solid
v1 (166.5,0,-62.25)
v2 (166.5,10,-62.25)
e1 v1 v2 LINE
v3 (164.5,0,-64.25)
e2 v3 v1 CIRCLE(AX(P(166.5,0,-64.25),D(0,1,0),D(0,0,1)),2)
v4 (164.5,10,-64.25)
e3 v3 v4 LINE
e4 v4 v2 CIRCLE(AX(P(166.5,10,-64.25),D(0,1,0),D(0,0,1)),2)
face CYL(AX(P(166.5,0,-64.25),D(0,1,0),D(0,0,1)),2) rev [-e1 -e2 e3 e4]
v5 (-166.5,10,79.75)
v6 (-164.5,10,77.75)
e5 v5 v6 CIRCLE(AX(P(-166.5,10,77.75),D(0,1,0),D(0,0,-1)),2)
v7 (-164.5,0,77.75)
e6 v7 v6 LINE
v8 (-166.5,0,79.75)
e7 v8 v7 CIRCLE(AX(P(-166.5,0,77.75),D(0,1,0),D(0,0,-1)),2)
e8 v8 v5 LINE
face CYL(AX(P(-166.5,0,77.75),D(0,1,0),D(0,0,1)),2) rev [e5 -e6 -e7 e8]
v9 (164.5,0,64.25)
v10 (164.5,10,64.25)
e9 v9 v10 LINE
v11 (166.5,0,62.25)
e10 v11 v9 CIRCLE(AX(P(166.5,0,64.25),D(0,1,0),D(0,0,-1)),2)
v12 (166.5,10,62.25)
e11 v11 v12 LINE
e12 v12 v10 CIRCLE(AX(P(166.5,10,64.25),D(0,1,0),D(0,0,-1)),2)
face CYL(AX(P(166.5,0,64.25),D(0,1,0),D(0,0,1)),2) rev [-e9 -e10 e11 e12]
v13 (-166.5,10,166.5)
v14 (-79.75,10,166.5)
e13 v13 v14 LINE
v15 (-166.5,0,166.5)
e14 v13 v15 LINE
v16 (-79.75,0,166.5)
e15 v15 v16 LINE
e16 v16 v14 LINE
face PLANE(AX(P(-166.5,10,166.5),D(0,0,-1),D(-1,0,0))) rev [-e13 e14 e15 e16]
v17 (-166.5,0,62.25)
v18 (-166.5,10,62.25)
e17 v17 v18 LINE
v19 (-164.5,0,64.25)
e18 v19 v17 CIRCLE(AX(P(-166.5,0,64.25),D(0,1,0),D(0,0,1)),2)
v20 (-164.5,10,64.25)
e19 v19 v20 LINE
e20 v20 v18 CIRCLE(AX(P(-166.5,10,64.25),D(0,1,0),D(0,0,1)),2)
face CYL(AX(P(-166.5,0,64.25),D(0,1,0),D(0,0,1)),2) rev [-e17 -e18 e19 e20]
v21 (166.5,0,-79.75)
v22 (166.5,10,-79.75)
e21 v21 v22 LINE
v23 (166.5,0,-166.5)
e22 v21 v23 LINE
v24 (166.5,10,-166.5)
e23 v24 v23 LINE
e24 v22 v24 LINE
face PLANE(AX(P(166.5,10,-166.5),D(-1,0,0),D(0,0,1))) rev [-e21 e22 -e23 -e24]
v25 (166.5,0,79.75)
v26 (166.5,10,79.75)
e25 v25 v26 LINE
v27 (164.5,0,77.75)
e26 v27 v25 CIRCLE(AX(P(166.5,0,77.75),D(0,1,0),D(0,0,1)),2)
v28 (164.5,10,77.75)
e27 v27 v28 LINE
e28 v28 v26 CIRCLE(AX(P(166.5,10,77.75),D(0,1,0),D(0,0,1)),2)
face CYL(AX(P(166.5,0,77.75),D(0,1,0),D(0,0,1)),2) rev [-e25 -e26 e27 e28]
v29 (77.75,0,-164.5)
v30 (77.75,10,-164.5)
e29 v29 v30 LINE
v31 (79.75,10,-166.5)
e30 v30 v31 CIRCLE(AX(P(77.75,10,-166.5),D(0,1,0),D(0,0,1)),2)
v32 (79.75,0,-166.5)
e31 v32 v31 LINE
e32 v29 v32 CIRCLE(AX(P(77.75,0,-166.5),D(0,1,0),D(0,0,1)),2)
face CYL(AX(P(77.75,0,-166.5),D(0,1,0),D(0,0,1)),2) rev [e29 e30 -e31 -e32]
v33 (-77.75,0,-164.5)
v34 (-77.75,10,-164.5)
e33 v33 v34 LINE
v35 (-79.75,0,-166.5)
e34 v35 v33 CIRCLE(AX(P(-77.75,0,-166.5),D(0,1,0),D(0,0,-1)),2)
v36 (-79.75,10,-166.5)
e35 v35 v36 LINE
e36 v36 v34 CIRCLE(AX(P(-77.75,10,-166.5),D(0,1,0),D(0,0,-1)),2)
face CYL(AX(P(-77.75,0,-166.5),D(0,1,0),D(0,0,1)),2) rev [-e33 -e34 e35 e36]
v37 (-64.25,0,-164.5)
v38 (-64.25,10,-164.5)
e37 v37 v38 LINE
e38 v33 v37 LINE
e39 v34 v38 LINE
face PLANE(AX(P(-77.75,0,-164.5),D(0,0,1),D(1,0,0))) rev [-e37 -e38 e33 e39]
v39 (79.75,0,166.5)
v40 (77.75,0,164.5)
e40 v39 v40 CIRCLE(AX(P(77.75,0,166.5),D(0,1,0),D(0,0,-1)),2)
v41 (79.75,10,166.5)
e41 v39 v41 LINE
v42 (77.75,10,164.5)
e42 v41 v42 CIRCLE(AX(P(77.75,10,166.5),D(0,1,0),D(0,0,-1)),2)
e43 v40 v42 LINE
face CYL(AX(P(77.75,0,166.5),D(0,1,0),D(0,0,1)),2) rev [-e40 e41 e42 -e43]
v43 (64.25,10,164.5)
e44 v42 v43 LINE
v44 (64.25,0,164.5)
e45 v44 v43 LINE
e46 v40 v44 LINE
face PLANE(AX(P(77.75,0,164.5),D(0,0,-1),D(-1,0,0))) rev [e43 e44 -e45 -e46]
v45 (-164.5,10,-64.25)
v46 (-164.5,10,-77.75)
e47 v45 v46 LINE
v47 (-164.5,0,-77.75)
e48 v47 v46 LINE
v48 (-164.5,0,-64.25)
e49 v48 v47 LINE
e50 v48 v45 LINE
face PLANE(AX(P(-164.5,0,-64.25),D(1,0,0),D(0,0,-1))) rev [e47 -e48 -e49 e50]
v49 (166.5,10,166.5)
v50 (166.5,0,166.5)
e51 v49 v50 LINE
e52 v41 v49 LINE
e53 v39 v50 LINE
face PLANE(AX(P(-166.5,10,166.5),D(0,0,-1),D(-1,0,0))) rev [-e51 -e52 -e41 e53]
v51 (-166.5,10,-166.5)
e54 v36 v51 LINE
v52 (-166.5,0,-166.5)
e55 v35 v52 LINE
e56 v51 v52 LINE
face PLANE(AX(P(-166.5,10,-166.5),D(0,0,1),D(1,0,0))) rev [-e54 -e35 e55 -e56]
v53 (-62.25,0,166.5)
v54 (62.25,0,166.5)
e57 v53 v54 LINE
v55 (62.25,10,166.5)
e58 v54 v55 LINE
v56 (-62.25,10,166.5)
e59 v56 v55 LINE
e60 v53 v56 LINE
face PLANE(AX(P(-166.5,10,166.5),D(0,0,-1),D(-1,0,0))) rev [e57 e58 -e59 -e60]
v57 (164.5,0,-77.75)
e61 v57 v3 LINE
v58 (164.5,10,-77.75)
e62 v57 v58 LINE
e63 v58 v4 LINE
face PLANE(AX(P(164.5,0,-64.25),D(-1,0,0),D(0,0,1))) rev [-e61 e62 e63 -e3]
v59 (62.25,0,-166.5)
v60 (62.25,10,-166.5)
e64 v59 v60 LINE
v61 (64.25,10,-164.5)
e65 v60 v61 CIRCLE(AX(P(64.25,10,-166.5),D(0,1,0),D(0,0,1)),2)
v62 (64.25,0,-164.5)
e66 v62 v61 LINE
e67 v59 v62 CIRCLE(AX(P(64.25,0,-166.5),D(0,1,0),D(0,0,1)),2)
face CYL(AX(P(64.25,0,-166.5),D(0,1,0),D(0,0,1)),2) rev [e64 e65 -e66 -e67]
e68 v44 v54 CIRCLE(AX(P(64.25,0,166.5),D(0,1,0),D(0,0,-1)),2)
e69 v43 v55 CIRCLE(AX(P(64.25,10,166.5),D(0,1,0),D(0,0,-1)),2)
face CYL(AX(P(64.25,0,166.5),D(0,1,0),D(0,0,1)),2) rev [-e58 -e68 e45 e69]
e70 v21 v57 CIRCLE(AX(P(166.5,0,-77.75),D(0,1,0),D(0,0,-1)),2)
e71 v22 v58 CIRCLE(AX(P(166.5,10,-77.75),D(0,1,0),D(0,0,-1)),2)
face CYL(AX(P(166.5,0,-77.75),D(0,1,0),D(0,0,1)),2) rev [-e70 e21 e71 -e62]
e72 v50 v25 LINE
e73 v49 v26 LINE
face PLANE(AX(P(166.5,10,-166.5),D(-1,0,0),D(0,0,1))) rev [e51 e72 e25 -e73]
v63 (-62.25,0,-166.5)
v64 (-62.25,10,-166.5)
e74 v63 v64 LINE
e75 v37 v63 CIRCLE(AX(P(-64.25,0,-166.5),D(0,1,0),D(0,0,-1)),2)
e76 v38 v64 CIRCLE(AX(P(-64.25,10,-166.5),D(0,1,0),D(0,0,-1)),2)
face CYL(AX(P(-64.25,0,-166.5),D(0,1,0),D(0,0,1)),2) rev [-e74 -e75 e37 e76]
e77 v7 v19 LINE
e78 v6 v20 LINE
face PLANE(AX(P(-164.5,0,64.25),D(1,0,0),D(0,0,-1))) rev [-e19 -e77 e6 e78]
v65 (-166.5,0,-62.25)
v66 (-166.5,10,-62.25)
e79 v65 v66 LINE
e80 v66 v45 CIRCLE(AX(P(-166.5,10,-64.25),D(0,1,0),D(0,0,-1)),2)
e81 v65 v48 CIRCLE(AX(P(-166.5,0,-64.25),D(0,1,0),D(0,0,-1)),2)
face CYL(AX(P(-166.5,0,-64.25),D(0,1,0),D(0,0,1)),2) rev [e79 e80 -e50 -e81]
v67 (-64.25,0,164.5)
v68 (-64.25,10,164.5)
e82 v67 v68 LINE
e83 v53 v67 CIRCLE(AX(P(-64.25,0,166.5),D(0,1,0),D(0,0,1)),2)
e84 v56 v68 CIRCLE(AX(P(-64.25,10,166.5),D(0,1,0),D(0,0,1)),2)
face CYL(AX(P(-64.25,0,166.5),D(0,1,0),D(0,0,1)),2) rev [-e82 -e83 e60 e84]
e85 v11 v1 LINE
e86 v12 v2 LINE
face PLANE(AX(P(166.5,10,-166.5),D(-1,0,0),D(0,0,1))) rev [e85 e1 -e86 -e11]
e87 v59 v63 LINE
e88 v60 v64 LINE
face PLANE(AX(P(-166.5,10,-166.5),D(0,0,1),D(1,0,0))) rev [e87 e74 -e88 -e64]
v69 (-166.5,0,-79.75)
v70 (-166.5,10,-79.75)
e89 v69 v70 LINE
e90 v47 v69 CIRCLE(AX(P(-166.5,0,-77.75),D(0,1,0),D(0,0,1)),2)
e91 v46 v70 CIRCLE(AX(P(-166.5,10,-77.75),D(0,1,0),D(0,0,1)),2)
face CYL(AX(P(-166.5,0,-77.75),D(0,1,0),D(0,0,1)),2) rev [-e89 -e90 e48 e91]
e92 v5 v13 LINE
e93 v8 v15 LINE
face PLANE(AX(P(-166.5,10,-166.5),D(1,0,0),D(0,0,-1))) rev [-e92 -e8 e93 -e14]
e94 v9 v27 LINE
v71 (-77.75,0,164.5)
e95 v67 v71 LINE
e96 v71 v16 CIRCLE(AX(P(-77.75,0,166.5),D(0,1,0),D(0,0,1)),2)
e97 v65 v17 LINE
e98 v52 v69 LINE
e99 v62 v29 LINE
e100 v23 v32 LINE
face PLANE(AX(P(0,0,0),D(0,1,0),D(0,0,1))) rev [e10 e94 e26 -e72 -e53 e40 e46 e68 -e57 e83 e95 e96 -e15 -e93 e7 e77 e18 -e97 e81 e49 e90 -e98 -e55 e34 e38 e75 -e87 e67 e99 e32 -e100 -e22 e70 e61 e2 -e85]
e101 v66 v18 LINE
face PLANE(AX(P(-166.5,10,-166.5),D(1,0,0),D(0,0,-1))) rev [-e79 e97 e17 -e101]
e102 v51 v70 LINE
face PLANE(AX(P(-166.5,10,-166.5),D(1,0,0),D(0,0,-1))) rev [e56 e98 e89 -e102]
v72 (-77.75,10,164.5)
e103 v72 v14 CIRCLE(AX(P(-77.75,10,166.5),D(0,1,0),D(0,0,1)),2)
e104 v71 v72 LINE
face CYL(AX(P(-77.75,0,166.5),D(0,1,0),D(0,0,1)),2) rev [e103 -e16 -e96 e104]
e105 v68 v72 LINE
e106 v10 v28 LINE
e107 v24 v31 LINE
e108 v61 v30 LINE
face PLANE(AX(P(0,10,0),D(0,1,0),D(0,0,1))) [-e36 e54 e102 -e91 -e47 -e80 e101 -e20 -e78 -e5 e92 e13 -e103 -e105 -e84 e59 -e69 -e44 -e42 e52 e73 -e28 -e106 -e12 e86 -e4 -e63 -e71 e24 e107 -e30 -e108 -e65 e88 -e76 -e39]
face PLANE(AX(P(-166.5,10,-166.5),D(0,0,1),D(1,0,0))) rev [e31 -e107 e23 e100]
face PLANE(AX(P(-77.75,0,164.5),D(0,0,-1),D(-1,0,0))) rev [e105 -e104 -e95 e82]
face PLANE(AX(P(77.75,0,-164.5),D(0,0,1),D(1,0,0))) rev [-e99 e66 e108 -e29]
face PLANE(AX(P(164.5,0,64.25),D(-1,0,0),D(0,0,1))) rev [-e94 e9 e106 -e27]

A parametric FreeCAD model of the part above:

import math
import FreeCAD as App
import Part
import Sketcher


def add_polygon(sketch, points):
    """Adds a closed chain of lines whose ends are joined by coincident constraints."""
    first, n = sketch.GeometryCount, len(points)
    for a, b in zip(points, points[1:] + points[:1]):
        sketch.addGeometry(Part.LineSegment(App.Vector(*a, 0), App.Vector(*b, 0)), False)
    for i in range(n):
        sketch.addConstraint(Sketcher.Constraint("Coincident", first + i, 2, first + (i + 1) % n, 1))

doc = App.newDocument("Part")
body = doc.addObject("PartDesign::Body", "Body")

# Sketch on XZ plane
sketch1 = doc.addObject("Sketcher::SketchObject", "Sketch")
body.addObject(sketch1)
sketch1.AttachmentSupport = (doc.XZ_Plane, [""])
sketch1.MapMode = "FlatFace"
add_polygon(sketch1, [(-166.5, -166.5), (-166.5, 166.5), (166.5, 166.5), (166.5, -166.5)])  # lines 0-3
sketch1.addConstraint([
    Sketcher.Constraint("Vertical", 0),
    Sketcher.Constraint("Horizontal", 1),
    Sketcher.Constraint("Vertical", 2),
    Sketcher.Constraint("Horizontal", 3),
    Sketcher.Constraint("Symmetric", 0, 2, 2, 2, -1, 1),
    Sketcher.Constraint("Equal", 3, 0),
    Sketcher.Constraint("DistanceX", 1, 1, 1, 2, 333.0),
])
pad1 = doc.addObject("PartDesign::Pad", "Pad")
body.addObject(pad1)
pad1.Profile = sketch1
pad1.Length = 10
pad1.Reversed = True

# Sketch on XZ plane
sketch2 = doc.addObject("Sketcher::SketchObject", "Sketch001")
body.addObject(sketch2)
sketch2.AttachmentSupport = (doc.XZ_Plane, [""])
sketch2.MapMode = "FlatFace"
sketch2.AttachmentOffset = App.Placement(App.Vector(0, 0, -10), App.Rotation())
sketch2.addGeometry([
    Part.LineSegment(App.Vector(-64.25, 164.5, 0), App.Vector(-77.75, 164.5, 0)),  # 0
    Part.ArcOfCircle(Part.Circle(App.Vector(-77.75, 166.5, 0), App.Vector(0, 0, 1), 2), math.radians(-180), math.radians(-90)),  # 1
    Part.LineSegment(App.Vector(-79.75, 166.5, 0), App.Vector(-79.75, 168.5, 0)),  # 2
    Part.LineSegment(App.Vector(-79.75, 168.5, 0), App.Vector(-62.25, 168.5, 0)),  # 3
    Part.LineSegment(App.Vector(-62.25, 168.5, 0), App.Vector(-62.25, 166.5, 0)),  # 4
    Part.ArcOfCircle(Part.Circle(App.Vector(-64.25, 166.5, 0), App.Vector(0, 0, 1), 2), math.radians(-90), math.radians(0)),  # 5
    Part.LineSegment(App.Vector(168.5, 62.25, 0), App.Vector(166.5, 62.25, 0)),  # 6
    Part.ArcOfCircle(Part.Circle(App.Vector(166.5, 64.25, 0), App.Vector(0, 0, 1), 2), math.radians(-180), math.radians(-90)),  # 7
    Part.LineSegment(App.Vector(164.5, 64.25, 0), App.Vector(164.5, 77.75, 0)),  # 8
    Part.ArcOfCircle(Part.Circle(App.Vector(166.5, 77.75, 0), App.Vector(0, 0, 1), 2), math.radians(90), math.radians(180)),  # 9
    Part.LineSegment(App.Vector(166.5, 79.75, 0), App.Vector(168.5, 79.75, 0)),  # 10
    Part.LineSegment(App.Vector(168.5, 79.75, 0), App.Vector(168.5, 62.25, 0)),  # 11
    Part.LineSegment(App.Vector(62.25, 166.5, 0), App.Vector(62.25, 168.5, 0)),  # 12
    Part.LineSegment(App.Vector(62.25, 168.5, 0), App.Vector(79.75, 168.5, 0)),  # 13
    Part.LineSegment(App.Vector(79.75, 168.5, 0), App.Vector(79.75, 166.5, 0)),  # 14
    Part.ArcOfCircle(Part.Circle(App.Vector(77.75, 166.5, 0), App.Vector(0, 0, 1), 2), math.radians(-90), math.radians(0)),  # 15
    Part.LineSegment(App.Vector(77.75, 164.5, 0), App.Vector(64.25, 164.5, 0)),  # 16
    Part.ArcOfCircle(Part.Circle(App.Vector(64.25, 166.5, 0), App.Vector(0, 0, 1), 2), math.radians(-180), math.radians(-90)),  # 17
    Part.LineSegment(App.Vector(168.5, -62.25, 0), App.Vector(168.5, -79.75, 0)),  # 18
    Part.LineSegment(App.Vector(168.5, -79.75, 0), App.Vector(166.5, -79.75, 0)),  # 19
    Part.ArcOfCircle(Part.Circle(App.Vector(166.5, -77.75, 0), App.Vector(0, 0, 1), 2), math.radians(-180), math.radians(-90)),  # 20
    Part.LineSegment(App.Vector(164.5, -77.75, 0), App.Vector(164.5, -64.25, 0)),  # 21
    Part.ArcOfCircle(Part.Circle(App.Vector(166.5, -64.25, 0), App.Vector(0, 0, 1), 2), math.radians(90), math.radians(180)),  # 22
    Part.LineSegment(App.Vector(166.5, -62.25, 0), App.Vector(168.5, -62.25, 0)),  # 23
    Part.LineSegment(App.Vector(-168.5, -62.25, 0), App.Vector(-166.5, -62.25, 0)),  # 24
    Part.ArcOfCircle(Part.Circle(App.Vector(-166.5, -64.25, 0), App.Vector(0, 0, 1), 2), math.radians(0), math.radians(90)),  # 25
    Part.LineSegment(App.Vector(-164.5, -64.25, 0), App.Vector(-164.5, -77.75, 0)),  # 26
    Part.ArcOfCircle(Part.Circle(App.Vector(-166.5, -77.75, 0), App.Vector(0, 0, 1), 2), math.radians(-90), math.radians(0)),  # 27
    Part.LineSegment(App.Vector(-166.5, -79.75, 0), App.Vector(-168.5, -79.75, 0)),  # 28
    Part.LineSegment(App.Vector(-168.5, -79.75, 0), App.Vector(-168.5, -62.25, 0)),  # 29
    Part.LineSegment(App.Vector(-168.5, 62.25, 0), App.Vector(-168.5, 79.75, 0)),  # 30
    Part.LineSegment(App.Vector(-168.5, 79.75, 0), App.Vector(-166.5, 79.75, 0)),  # 31
    Part.ArcOfCircle(Part.Circle(App.Vector(-166.5, 77.75, 0), App.Vector(0, 0, 1), 2), math.radians(0), math.radians(90)),  # 32
    Part.LineSegment(App.Vector(-164.5, 77.75, 0), App.Vector(-164.5, 64.25, 0)),  # 33
    Part.ArcOfCircle(Part.Circle(App.Vector(-166.5, 64.25, 0), App.Vector(0, 0, 1), 2), math.radians(-90), math.radians(0)),  # 34
    Part.LineSegment(App.Vector(-166.5, 62.25, 0), App.Vector(-168.5, 62.25, 0)),  # 35
    Part.LineSegment(App.Vector(64.25, -164.5, 0), App.Vector(77.75, -164.5, 0)),  # 36
    Part.ArcOfCircle(Part.Circle(App.Vector(77.75, -166.5, 0), App.Vector(0, 0, 1), 2), math.radians(0), math.radians(90)),  # 37
    Part.LineSegment(App.Vector(79.75, -166.5, 0), App.Vector(79.75, -168.5, 0)),  # 38
    Part.LineSegment(App.Vector(79.75, -168.5, 0), App.Vector(62.25, -168.5, 0)),  # 39
    Part.LineSegment(App.Vector(62.25, -168.5, 0), App.Vector(62.25, -166.5, 0)),  # 40
    Part.ArcOfCircle(Part.Circle(App.Vector(64.25, -166.5, 0), App.Vector(0, 0, 1), 2), math.radians(90), math.radians(180)),  # 41
    Part.LineSegment(App.Vector(-62.25, -166.5, 0), App.Vector(-62.25, -168.5, 0)),  # 42
    Part.LineSegment(App.Vector(-62.25, -168.5, 0), App.Vector(-79.75, -168.5, 0)),  # 43
    Part.LineSegment(App.Vector(-79.75, -168.5, 0), App.Vector(-79.75, -166.5, 0)),  # 44
    Part.ArcOfCircle(Part.Circle(App.Vector(-77.75, -166.5, 0), App.Vector(0, 0, 1), 2), math.radians(90), math.radians(180)),  # 45
    Part.LineSegment(App.Vector(-77.75, -164.5, 0), App.Vector(-64.25, -164.5, 0)),  # 46
    Part.ArcOfCircle(Part.Circle(App.Vector(-64.25, -166.5, 0), App.Vector(0, 0, 1), 2), math.radians(0), math.radians(90)),  # 47
], False)
sketch2.addConstraint([
    Sketcher.Constraint("Tangent", 0, 2, 1, 2),
    Sketcher.Constraint("Tangent", 1, 1, 2, 1),
    Sketcher.Constraint("Coincident", 2, 2, 3, 1),
    Sketcher.Constraint("Coincident", 3, 2, 4, 1),
    Sketcher.Constraint("Tangent", 4, 2, 5, 2),
    Sketcher.Constraint("Tangent", 5, 1, 0, 1),
    Sketcher.Constraint("Tangent", 6, 2, 7, 2),
    Sketcher.Constraint("Tangent", 7, 1, 8, 1),
    Sketcher.Constraint("Tangent", 8, 2, 9, 2),
    Sketcher.Constraint("Tangent", 9, 1, 10, 1),
    Sketcher.Constraint("Coincident", 10, 2, 11, 1),
    Sketcher.Constraint("Coincident", 11, 2, 6, 1),
    Sketcher.Constraint("Coincident", 12, 2, 13, 1),
    Sketcher.Constraint("Coincident", 13, 2, 14, 1),
    Sketcher.Constraint("Tangent", 14, 2, 15, 2),
    Sketcher.Constraint("Tangent", 15, 1, 16, 1),
    Sketcher.Constraint("Tangent", 16, 2, 17, 2),
    Sketcher.Constraint("Tangent", 17, 1, 12, 1),
    Sketcher.Constraint("Coincident", 18, 2, 19, 1),
    Sketcher.Constraint("Tangent", 19, 2, 20, 2),
    Sketcher.Constraint("Tangent", 20, 1, 21, 1),
    Sketcher.Constraint("Tangent", 21, 2, 22, 2),
    Sketcher.Constraint("Tangent", 22, 1, 23, 1),
    Sketcher.Constraint("Coincident", 23, 2, 18, 1),
    Sketcher.Constraint("Tangent", 24, 2, 25, 2),
    Sketcher.Constraint("Tangent", 25, 1, 26, 1),
    Sketcher.Constraint("Tangent", 26, 2, 27, 2),
    Sketcher.Constraint("Tangent", 27, 1, 28, 1),
    Sketcher.Constraint("Coincident", 28, 2, 29, 1),
    Sketcher.Constraint("Coincident", 29, 2, 24, 1),
    Sketcher.Constraint("Coincident", 30, 2, 31, 1),
    Sketcher.Constraint("Tangent", 31, 2, 32, 2),
    Sketcher.Constraint("Tangent", 32, 1, 33, 1),
    Sketcher.Constraint("Tangent", 33, 2, 34, 2),
    Sketcher.Constraint("Tangent", 34, 1, 35, 1),
    Sketcher.Constraint("Coincident", 35, 2, 30, 1),
    Sketcher.Constraint("Tangent", 36, 2, 37, 2),
    Sketcher.Constraint("Tangent", 37, 1, 38, 1),
    Sketcher.Constraint("Coincident", 38, 2, 39, 1),
    Sketcher.Constraint("Coincident", 39, 2, 40, 1),
    Sketcher.Constraint("Tangent", 40, 2, 41, 2),
    Sketcher.Constraint("Tangent", 41, 1, 36, 1),
    Sketcher.Constraint("Coincident", 42, 2, 43, 1),
    Sketcher.Constraint("Coincident", 43, 2, 44, 1),
    Sketcher.Constraint("Tangent", 44, 2, 45, 2),
    Sketcher.Constraint("Tangent", 45, 1, 46, 1),
    Sketcher.Constraint("Tangent", 46, 2, 47, 2),
    Sketcher.Constraint("Tangent", 47, 1, 42, 1),
    Sketcher.Constraint("Horizontal", 0),
    Sketcher.Constraint("Vertical", 2),
    Sketcher.Constraint("Horizontal", 3),
    Sketcher.Constraint("Vertical", 4),
    Sketcher.Constraint("Horizontal", 6),
    Sketcher.Constraint("Vertical", 8),
    Sketcher.Constraint("Horizontal", 10),
    Sketcher.Constraint("Vertical", 11),
    Sketcher.Constraint("Vertical", 12),
    Sketcher.Constraint("Horizontal", 13),
    Sketcher.Constraint("Vertical", 14),
    Sketcher.Constraint("Horizontal", 16),
    Sketcher.Constraint("Vertical", 18),
    Sketcher.Constraint("Horizontal", 19),
    Sketcher.Constraint("Vertical", 21),
    Sketcher.Constraint("Horizontal", 23),
    Sketcher.Constraint("Horizontal", 24),
    Sketcher.Constraint("Vertical", 26),
    Sketcher.Constraint("Horizontal", 28),
    Sketcher.Constraint("Vertical", 29),
    Sketcher.Constraint("Vertical", 30),
    Sketcher.Constraint("Horizontal", 31),
    Sketcher.Constraint("Vertical", 33),
    Sketcher.Constraint("Horizontal", 35),
    Sketcher.Constraint("Horizontal", 36),
    Sketcher.Constraint("Vertical", 38),
    Sketcher.Constraint("Horizontal", 39),
    Sketcher.Constraint("Vertical", 40),
    Sketcher.Constraint("Vertical", 42),
    Sketcher.Constraint("Horizontal", 43),
    Sketcher.Constraint("Vertical", 44),
    Sketcher.Constraint("Horizontal", 46),
    Sketcher.Constraint("Equal", 1, 5),
    Sketcher.Constraint("Equal", 5, 7),
    Sketcher.Constraint("Equal", 7, 9),
    Sketcher.Constraint("Equal", 9, 15),
    Sketcher.Constraint("Equal", 15, 17),
    Sketcher.Constraint("Equal", 17, 20),
    Sketcher.Constraint("Equal", 20, 22),
    Sketcher.Constraint("Equal", 22, 25),
    Sketcher.Constraint("Equal", 25, 27),
    Sketcher.Constraint("Equal", 27, 32),
    Sketcher.Constraint("Equal", 32, 34),
    Sketcher.Constraint("Equal", 34, 37),
    Sketcher.Constraint("Equal", 37, 41),
    Sketcher.Constraint("Equal", 41, 45),
    Sketcher.Constraint("Equal", 45, 47),
    Sketcher.Constraint("Symmetric", 7, 3, 25, 3, -1, 1),
    Sketcher.Constraint("Symmetric", 20, 3, 32, 3, -1, 1),
    Sketcher.Constraint("Symmetric", 1, 3, 37, 3, -1, 1),
    Sketcher.Constraint("Symmetric", 15, 3, 45, 3, -1, 1),
    Sketcher.Constraint("Symmetric", 10, 2, 28, 2, -1, 1),
    Sketcher.Constraint("Symmetric", 23, 2, 35, 2, -1, 1),
    Sketcher.Constraint("Symmetric", 3, 2, 39, 2, -1, 1),
    Sketcher.Constraint("Symmetric", 12, 2, 42, 2, -1, 1),
    Sketcher.Constraint("Symmetric", 1, 3, 15, 3, -2),
    Sketcher.Constraint("Symmetric", 22, 3, 25, 3, -2),
    Sketcher.Constraint("Symmetric", 3, 2, 12, 2, -2),
    Sketcher.Constraint("Symmetric", 18, 2, 28, 2, -2),
    Sketcher.Constraint("Equal", 35, 2),
    Sketcher.Constraint("Equal", 46, 8),
    Sketcher.Constraint("Radius", 1, 2.0),
    Sketcher.Constraint("DistanceX", 6, 2, 6, 1, 2.0),
    Sketcher.Constraint("DistanceX", 0, 2, 0, 1, 13.5),
    Sketcher.Constraint("DistanceY", -1, 1, 1, 3, 166.5),
    Sketcher.Constraint("DistanceX", -1, 1, 7, 3, 166.5),
    Sketcher.Constraint("DistanceX", 1, 3, -1, 1, 77.75),
    Sketcher.Constraint("DistanceY", -1, 1, 7, 3, 64.25),
])
pocket1 = doc.addObject("PartDesign::Pocket", "Pocket")
body.addObject(pocket1)
pocket1.Profile = sketch2
pocket1.Type = "ThroughAll"
pocket1.Reversed = True

doc.recompute()
